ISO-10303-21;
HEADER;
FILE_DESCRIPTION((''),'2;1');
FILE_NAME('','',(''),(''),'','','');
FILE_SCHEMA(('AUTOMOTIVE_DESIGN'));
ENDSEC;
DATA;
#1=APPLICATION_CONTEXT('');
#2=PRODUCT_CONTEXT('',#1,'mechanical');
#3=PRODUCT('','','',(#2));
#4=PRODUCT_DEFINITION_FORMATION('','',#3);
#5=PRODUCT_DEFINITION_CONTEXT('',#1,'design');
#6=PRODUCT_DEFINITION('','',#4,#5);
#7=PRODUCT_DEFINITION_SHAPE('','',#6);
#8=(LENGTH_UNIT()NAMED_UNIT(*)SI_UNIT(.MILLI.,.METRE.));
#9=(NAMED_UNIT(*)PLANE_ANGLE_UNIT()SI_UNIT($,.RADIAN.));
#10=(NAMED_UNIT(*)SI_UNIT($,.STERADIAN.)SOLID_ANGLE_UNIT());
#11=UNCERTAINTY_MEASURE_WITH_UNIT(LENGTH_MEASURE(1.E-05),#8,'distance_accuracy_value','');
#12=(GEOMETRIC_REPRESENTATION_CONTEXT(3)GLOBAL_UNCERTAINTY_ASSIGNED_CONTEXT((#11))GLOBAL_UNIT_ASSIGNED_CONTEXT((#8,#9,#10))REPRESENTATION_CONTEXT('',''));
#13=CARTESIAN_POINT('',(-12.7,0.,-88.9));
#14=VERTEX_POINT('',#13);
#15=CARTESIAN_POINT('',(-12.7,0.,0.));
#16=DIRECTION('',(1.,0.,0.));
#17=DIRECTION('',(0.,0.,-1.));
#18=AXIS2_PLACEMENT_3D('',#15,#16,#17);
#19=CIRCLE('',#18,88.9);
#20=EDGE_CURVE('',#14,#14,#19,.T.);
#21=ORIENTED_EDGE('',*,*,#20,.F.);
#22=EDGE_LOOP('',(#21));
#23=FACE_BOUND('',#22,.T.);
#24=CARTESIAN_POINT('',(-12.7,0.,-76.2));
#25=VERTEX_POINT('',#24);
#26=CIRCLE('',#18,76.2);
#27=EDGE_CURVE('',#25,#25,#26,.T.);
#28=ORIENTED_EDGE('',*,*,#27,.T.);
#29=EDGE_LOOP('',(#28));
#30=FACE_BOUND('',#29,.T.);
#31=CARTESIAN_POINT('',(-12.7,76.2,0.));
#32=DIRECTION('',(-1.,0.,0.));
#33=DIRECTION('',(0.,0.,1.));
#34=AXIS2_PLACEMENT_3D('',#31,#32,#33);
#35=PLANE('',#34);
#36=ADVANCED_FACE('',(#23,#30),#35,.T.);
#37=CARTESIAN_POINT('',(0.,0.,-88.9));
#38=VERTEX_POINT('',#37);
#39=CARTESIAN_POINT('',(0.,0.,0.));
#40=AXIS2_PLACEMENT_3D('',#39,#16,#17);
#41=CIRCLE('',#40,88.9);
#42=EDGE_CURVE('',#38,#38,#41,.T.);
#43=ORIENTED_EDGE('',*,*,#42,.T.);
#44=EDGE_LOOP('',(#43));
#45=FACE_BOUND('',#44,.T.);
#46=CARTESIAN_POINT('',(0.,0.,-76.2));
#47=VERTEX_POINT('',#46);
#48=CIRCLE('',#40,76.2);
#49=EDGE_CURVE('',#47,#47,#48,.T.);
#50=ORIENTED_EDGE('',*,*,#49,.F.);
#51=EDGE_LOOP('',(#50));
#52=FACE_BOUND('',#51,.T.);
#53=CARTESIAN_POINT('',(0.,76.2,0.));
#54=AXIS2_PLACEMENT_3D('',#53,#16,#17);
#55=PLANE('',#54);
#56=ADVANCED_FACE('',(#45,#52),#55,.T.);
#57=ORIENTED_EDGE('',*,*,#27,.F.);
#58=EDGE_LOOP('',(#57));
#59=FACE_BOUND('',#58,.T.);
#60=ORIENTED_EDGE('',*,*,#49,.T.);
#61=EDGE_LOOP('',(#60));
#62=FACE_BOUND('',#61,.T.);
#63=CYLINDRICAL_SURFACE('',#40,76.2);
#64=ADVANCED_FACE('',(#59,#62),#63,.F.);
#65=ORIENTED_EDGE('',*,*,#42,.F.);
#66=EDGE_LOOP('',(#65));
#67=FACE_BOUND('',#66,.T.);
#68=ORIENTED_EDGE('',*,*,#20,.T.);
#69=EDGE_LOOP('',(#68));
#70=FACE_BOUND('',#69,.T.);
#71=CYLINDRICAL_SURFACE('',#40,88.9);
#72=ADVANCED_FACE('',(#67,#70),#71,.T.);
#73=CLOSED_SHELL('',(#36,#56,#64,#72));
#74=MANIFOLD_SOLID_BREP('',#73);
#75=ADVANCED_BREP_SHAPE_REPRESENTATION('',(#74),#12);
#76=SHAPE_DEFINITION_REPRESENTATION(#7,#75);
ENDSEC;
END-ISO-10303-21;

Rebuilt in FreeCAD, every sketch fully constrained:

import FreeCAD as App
import Part
import Sketcher
from FreeCAD import Vector
Q = App.Units.Quantity


def add_polygon(sketch, points):
    """Adds a closed chain of lines whose ends are joined by coincident constraints."""
    first, n = sketch.GeometryCount, len(points)
    for a, b in zip(points, points[1:] + points[:1]):
        sketch.addGeometry(Part.LineSegment(App.Vector(*a, 0), App.Vector(*b, 0)), False)
    for i in range(n):
        sketch.addConstraint(Sketcher.Constraint("Coincident", first + i, 2, first + (i + 1) % n, 1))

doc = App.newDocument("Part")
body = doc.addObject("PartDesign::Body", "Body")

# Sketch on XY plane
sketch1 = doc.addObject("Sketcher::SketchObject", "Sketch")
body.addObject(sketch1)
sketch1.AttachmentSupport = (doc.XY_Plane, [""])
sketch1.MapMode = "FlatFace"
add_polygon(sketch1, [(-13, 89), (-13, 76), (0, 76), (0, 89)])  # lines 0-3
sketch1.addConstraint(Sketcher.Constraint("Vertical", 0))
sketch1.addConstraint(Sketcher.Constraint("Horizontal", 1))
sketch1.addConstraint(Sketcher.Constraint("Vertical", 2))
sketch1.addConstraint(Sketcher.Constraint("Horizontal", 3))
sketch1.addConstraint(Sketcher.Constraint("PointOnObject", 1, 2, -2))
sketch1.addConstraint(Sketcher.Constraint("Equal", 3, 0))
sketch1.addConstraint(Sketcher.Constraint("DistanceX", 1, 1, 1, 2, Q("0.5 in")))
sketch1.addConstraint(Sketcher.Constraint("DistanceY", -1, 1, 0, 2, Q("3 in")))
revolution = doc.addObject("PartDesign::Revolution", "Revolution")
body.addObject(revolution)
revolution.Profile = sketch1
revolution.ReferenceAxis = (sketch1, ["H_Axis"])
revolution.Angle = 360

doc.recompute()
